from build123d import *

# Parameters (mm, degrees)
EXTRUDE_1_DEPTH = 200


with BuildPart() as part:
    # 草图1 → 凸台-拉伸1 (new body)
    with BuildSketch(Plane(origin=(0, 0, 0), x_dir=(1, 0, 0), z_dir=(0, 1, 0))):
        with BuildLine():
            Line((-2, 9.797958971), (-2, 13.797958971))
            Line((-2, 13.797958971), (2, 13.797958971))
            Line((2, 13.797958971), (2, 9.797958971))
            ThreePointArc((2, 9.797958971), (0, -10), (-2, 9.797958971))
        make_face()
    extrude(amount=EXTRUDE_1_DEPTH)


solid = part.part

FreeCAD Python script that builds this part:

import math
import FreeCAD as App
import Part
import Sketcher
Q = App.Units.Quantity

doc = App.newDocument("Part")
body = doc.addObject("PartDesign::Body", "Body")

sketch1 = body.newObject("Sketcher::SketchObject", "Sketch")
sketch1.AttachmentSupport = (doc.getObject("XZ_Plane"), [""])
sketch1.MapMode = "FlatFace"
sketch1.addGeometry([
    Part.LineSegment(App.Vector(-2, -13.797959, 0), App.Vector(-2, -9.797959, 0)),
    Part.ArcOfCircle(Part.Circle(App.Vector(0, 0, 0), App.Vector(0, 0, 1), 10), math.radians(-78.463041), math.radians(258.463041)),
    Part.LineSegment(App.Vector(2, -9.797959, 0), App.Vector(2, -13.797959, 0)),
    Part.LineSegment(App.Vector(2, -13.797959, 0), App.Vector(-2, -13.797959, 0)),
], False)
sketch1.addConstraint([
    Sketcher.Constraint("Coincident", 0, 2, 1, 2),
    Sketcher.Constraint("Coincident", 1, 1, 2, 1),
    Sketcher.Constraint("Coincident", 2, 2, 3, 1),
    Sketcher.Constraint("Coincident", 3, 2, 0, 1),
    Sketcher.Constraint("Vertical", 0),
    Sketcher.Constraint("Vertical", 2),
    Sketcher.Constraint("Horizontal", 3),
    Sketcher.Constraint("Coincident", 1, 3, -1, 1),
    Sketcher.Constraint("Horizontal", 0, 2, 1, 1),
    Sketcher.Constraint("Equal", 3, 0),
    Sketcher.Constraint("Radius", 1, Q("10 mm")),
    Sketcher.Constraint("DistanceX", 3, 2, 3, 1, Q("4 mm")),
])
pad1 = body.newObject("PartDesign::Pad", "Pad")
pad1.Profile = sketch1
pad1.Length = 200
pad1.Reversed = True

doc.recompute()
